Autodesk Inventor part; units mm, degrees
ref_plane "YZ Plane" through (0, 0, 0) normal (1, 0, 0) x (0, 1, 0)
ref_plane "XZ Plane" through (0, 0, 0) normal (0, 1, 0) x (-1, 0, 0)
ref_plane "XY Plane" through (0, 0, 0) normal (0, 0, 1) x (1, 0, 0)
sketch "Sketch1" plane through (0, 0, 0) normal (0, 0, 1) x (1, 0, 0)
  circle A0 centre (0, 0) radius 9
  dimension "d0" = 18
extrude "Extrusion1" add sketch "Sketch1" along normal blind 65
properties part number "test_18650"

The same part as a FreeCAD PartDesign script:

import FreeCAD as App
import Part
import Sketcher
from FreeCAD import Vector

doc = App.newDocument("Part")
body = doc.addObject("PartDesign::Body", "Body")

# Sketch on XY plane
sketch1 = body.newObject("Sketcher::SketchObject", "Sketch")
sketch1.AttachmentSupport = (doc.getObject("XY_Plane"), [""])
sketch1.MapMode = "FlatFace"
sketch1.addGeometry(Part.Circle(Vector(0, 0, 0), Vector(0, 0, 1), 9), False)
sketch1.addConstraint([
    Sketcher.Constraint("Coincident", 0, 3, -1, 1),
    Sketcher.Constraint("Diameter", 0, 18.0),
])
pad1 = body.newObject("PartDesign::Pad", "Pad")
pad1.Profile = sketch1
pad1.Length = 65

doc.recompute()
